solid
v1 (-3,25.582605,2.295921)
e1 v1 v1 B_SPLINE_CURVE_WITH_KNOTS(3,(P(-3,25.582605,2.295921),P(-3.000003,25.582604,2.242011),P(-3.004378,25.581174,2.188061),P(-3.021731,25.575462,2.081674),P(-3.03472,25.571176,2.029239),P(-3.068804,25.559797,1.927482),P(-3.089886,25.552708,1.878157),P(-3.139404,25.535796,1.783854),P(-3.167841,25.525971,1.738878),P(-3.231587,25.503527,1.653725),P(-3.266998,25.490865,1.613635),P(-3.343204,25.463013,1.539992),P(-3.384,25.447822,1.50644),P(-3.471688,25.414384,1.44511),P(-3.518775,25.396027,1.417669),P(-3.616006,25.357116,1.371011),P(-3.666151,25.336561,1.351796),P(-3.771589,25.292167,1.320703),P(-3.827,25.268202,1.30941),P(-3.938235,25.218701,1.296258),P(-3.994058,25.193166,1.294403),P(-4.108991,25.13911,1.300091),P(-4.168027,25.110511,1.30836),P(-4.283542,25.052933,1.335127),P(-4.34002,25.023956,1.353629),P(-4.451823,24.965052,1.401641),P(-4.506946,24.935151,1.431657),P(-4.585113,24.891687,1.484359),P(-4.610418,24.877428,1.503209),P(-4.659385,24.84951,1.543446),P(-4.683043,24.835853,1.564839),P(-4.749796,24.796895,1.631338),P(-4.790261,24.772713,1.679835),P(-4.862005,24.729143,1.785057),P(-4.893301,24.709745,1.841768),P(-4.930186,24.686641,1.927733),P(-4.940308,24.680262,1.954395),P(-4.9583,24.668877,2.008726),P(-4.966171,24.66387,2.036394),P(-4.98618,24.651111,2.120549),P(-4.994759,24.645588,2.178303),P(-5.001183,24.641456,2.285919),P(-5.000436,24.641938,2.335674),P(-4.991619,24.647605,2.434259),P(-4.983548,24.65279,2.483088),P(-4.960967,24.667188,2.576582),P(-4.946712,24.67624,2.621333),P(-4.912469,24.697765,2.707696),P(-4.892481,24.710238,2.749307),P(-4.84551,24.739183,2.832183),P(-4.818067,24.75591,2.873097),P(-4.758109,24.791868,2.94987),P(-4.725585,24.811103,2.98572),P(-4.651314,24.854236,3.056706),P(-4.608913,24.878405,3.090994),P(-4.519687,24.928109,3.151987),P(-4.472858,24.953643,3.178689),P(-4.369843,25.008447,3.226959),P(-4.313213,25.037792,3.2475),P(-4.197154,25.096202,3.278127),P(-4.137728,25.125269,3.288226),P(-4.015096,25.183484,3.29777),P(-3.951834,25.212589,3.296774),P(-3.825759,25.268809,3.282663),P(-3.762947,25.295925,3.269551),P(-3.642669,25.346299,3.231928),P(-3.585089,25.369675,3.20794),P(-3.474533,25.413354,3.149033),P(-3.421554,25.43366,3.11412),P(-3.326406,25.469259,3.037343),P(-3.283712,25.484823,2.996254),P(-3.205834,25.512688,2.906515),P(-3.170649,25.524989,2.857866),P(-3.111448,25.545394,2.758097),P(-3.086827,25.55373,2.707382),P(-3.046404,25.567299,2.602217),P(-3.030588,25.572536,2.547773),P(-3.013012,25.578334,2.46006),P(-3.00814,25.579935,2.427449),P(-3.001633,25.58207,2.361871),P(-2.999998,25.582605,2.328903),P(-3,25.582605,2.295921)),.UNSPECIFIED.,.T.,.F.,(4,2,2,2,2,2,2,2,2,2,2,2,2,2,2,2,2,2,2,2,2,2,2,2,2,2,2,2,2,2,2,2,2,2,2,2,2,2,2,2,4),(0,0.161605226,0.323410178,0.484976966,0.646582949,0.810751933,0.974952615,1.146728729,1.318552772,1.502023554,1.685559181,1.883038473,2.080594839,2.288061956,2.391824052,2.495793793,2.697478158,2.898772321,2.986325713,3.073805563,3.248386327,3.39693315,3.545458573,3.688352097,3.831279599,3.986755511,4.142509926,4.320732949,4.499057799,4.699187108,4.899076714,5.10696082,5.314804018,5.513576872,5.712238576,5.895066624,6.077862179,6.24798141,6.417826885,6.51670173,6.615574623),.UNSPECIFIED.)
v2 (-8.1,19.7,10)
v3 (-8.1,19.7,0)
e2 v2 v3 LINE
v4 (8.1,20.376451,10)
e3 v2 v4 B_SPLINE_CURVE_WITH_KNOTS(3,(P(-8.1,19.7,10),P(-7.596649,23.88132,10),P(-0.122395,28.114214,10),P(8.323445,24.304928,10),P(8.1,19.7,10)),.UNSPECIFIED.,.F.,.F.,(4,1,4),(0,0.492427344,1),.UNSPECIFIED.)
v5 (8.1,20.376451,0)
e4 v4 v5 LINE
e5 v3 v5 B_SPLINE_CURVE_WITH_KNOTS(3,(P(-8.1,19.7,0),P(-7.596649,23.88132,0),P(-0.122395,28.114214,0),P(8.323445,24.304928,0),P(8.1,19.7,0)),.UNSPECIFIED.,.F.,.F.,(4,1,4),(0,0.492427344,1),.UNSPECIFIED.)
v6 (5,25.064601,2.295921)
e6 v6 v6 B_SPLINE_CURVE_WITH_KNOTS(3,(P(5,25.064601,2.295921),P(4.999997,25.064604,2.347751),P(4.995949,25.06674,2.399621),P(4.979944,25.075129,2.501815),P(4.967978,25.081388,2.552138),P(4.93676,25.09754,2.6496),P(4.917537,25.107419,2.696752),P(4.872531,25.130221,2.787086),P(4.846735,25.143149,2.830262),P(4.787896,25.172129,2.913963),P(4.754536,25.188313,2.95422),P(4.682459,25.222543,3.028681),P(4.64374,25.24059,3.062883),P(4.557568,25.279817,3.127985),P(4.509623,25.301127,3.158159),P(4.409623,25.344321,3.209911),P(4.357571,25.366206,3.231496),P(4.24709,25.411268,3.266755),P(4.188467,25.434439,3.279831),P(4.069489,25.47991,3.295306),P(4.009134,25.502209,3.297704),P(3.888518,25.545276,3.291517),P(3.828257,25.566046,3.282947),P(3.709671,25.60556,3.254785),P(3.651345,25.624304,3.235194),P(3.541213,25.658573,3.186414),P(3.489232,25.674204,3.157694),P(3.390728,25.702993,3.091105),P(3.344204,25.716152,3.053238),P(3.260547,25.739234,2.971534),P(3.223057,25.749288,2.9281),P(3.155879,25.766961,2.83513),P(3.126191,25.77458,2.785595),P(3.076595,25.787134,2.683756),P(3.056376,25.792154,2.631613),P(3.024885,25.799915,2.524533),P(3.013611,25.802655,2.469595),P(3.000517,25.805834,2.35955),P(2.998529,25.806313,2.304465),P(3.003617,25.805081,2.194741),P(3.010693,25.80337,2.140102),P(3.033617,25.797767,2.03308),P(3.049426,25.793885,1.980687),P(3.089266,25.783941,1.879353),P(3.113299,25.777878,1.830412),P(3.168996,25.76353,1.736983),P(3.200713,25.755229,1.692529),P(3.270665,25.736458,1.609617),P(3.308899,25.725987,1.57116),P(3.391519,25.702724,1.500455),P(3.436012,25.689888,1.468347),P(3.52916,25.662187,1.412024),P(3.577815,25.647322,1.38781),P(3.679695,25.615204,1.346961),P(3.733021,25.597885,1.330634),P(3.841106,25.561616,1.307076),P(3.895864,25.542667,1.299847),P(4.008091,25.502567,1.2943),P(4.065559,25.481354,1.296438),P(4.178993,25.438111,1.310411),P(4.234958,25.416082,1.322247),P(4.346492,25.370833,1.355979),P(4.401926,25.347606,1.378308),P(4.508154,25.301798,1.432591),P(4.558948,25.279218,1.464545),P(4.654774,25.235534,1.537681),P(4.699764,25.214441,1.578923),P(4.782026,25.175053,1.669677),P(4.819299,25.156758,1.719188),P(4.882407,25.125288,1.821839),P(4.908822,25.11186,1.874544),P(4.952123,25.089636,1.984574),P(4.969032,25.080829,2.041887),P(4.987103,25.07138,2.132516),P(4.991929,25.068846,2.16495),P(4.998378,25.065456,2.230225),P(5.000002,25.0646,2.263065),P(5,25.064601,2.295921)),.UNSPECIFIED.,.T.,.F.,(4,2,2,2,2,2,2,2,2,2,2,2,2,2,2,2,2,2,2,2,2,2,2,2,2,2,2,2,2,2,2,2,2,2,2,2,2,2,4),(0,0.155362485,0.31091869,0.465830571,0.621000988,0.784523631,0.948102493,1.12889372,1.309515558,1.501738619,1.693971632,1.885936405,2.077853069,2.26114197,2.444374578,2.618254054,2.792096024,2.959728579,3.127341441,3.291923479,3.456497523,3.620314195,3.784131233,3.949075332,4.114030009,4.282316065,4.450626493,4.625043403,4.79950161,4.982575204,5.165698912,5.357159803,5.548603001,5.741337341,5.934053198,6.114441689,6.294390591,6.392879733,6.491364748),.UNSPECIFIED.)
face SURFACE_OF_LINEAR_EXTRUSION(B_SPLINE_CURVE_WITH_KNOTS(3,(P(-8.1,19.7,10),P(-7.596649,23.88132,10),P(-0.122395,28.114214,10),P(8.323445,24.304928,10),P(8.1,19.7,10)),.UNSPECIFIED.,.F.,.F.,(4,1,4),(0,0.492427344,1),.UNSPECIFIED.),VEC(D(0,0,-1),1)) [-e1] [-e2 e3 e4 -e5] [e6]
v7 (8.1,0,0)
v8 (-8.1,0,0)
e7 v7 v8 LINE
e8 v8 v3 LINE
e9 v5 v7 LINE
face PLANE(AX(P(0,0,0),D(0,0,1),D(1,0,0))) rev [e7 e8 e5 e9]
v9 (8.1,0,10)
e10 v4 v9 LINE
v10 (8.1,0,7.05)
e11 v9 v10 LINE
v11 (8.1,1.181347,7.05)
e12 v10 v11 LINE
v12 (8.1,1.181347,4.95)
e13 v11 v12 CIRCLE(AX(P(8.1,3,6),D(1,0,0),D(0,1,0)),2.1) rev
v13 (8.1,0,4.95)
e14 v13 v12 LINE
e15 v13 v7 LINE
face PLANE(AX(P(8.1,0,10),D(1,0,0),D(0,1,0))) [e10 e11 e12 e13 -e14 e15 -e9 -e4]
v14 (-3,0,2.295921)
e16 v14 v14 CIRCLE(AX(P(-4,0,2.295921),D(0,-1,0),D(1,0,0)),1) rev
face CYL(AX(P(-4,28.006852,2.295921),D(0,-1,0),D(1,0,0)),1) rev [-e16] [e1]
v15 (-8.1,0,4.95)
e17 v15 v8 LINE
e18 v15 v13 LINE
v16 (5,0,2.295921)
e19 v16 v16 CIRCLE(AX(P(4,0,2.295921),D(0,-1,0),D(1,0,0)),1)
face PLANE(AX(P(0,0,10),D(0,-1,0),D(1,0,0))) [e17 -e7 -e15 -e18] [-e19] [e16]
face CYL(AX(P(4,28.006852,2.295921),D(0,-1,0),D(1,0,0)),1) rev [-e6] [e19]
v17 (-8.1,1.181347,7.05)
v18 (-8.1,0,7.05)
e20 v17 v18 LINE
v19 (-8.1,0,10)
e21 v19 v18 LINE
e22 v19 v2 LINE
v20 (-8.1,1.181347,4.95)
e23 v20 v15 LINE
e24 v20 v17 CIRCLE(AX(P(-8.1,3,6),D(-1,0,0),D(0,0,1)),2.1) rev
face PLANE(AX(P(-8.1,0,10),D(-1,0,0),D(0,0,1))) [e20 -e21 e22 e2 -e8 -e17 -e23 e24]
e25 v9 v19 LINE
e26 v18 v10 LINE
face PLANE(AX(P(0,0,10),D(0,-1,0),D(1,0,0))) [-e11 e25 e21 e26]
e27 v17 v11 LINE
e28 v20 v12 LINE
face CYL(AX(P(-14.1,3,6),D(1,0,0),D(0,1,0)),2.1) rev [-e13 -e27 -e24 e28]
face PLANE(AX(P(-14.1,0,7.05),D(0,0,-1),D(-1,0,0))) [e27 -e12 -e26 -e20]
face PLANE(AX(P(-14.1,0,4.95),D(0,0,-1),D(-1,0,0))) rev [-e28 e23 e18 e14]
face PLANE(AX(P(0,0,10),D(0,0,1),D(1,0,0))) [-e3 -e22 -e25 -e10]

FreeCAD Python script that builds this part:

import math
import FreeCAD as App
import Part
import Sketcher
from FreeCAD import Vector

doc = App.newDocument("Part")
body = doc.addObject("PartDesign::Body", "Body")

sketch1 = body.newObject("Sketcher::SketchObject", "Sketch")
sketch1.AttachmentSupport = (doc.getObject("XY_Plane"), [""])
sketch1.MapMode = "FlatFace"
sketch1.addGeometry(Part.LineSegment(Vector(-8.1, 0, 0), Vector(8.1, 0, 0)), False)
sketch1.addGeometry(Part.LineSegment(Vector(8.1, 0, 0), Vector(8.1, 20.376451, 0)), False)
sketch1.addGeometry(Part.BSplineCurve([Vector(6.489352, 24, 0), Vector(7.416747, 23.101821, 0), Vector(8.022788, 21.90268, 0), Vector(8.1, 20.376451, 0)], [4, 4], [0.795779931, 0.974400134], False, 3, [1, 1, 1, 1], False), False)
sketch1.addGeometry(Part.BSplineCurve([Vector(-5.856909, 24, 0), Vector(-4.327036, 25.333221, 0), Vector(0.130189, 26.782367, 0), Vector(4.914346, 25.525387, 0), Vector(6.489352, 24, 0)], [4, 1, 4], [0.215700958, 0.492427344, 0.795779931], False, 3, [1, 1, 1, 1, 1], False), False)
sketch1.addGeometry(Part.BSplineCurve([Vector(-8.1, 19.7, 0), Vector(-7.879514, 21.531569, 0), Vector(-7.049405, 22.960789, 0), Vector(-5.856909, 24, 0)], [4, 4], [0, 0.215700958], False, 3, [1, 1, 1, 1], False), False)
sketch1.addGeometry(Part.LineSegment(Vector(-8.1, 19.7, 0), Vector(-8.1, 0, 0)), False)
sketch1.addConstraint(Sketcher.Constraint("Block", 2))
sketch1.addConstraint(Sketcher.Constraint("Block", 3))
sketch1.addConstraint(Sketcher.Constraint("Block", 4))
sketch1.addConstraint(Sketcher.Constraint("Coincident", 0, 2, 1, 1))
sketch1.addConstraint(Sketcher.Constraint("Coincident", 1, 2, 2, 2))
sketch1.addConstraint(Sketcher.Constraint("Coincident", 4, 1, 5, 1))
sketch1.addConstraint(Sketcher.Constraint("Coincident", 5, 2, 0, 1))
sketch1.addConstraint(Sketcher.Constraint("Horizontal", 0))
sketch1.addConstraint(Sketcher.Constraint("Vertical", 1))
sketch1.addConstraint(Sketcher.Constraint("Vertical", 5))
sketch1.addConstraint(Sketcher.Constraint("PointOnObject", 0, 2, -1))
pad1 = body.newObject("PartDesign::Pad", "Pad")
pad1.Profile = sketch1
pad1.Length = 10

sketch2 = body.newObject("Sketcher::SketchObject", "Sketch001")
sketch2.AttachmentSupport = (doc.getObject("XZ_Plane"), [""])
sketch2.MapMode = "FlatFace"
sketch2.addGeometry(Part.Circle(Vector(4, 2.295921, 0), Vector(0, 0, 1), 1), False)
sketch2.addConstraint(Sketcher.Constraint("Diameter", 0, 2.0))
sketch2.addConstraint(Sketcher.Constraint("DistanceX", -1, 1, 0, 3, 4.0))
sketch2.addConstraint(Sketcher.Constraint("DistanceY", -1, 1, 0, 3, 2.295921))
pocket1 = body.newObject("PartDesign::Pocket", "Pocket")
pocket1.Profile = sketch2
pocket1.Type = "UpToFirst"

sketch3 = body.newObject("Sketcher::SketchObject", "Sketch002")
sketch3.AttachmentSupport = (doc.getObject("XZ_Plane"), [""])
sketch3.MapMode = "FlatFace"
sketch3.addGeometry(Part.Circle(Vector(-4, 2.295921, 0), Vector(0, 0, 1), 1), False)
sketch3.addConstraint(Sketcher.Constraint("Diameter", 0, 2.0))
sketch3.addConstraint(Sketcher.Constraint("DistanceX", 0, 3, -1, 1, 4.0))
sketch3.addConstraint(Sketcher.Constraint("DistanceY", -1, 1, 0, 3, 2.295921))
pocket2 = body.newObject("PartDesign::Pocket", "Pocket001")
pocket2.Profile = sketch3
pocket2.Type = "UpToFirst"

sketch4 = body.newObject("Sketcher::SketchObject", "Sketch003")
sketch4.AttachmentSupport = (doc.getObject("YZ_Plane"), [""])
sketch4.MapMode = "FlatFace"
sketch4.addGeometry(Part.LineSegment(Vector(1.181347, 4.95, 0), Vector(0, 4.95, 0)), False)
sketch4.addGeometry(Part.LineSegment(Vector(0, 4.95, 0), Vector(0, 7.05, 0)), False)
sketch4.addGeometry(Part.LineSegment(Vector(0, 7.05, 0), Vector(1.181347, 7.05, 0)), False)
sketch4.addGeometry(Part.ArcOfCircle(Part.Circle(Vector(3, 6, 0), Vector(0, 0, 1), 2.1), math.radians(-150), math.radians(150)), False)
sketch4.addConstraint(Sketcher.Constraint("Coincident", 0, 2, 1, 1))
sketch4.addConstraint(Sketcher.Constraint("Coincident", 1, 2, 2, 1))
sketch4.addConstraint(Sketcher.Constraint("Coincident", 2, 2, 3, 2))
sketch4.addConstraint(Sketcher.Constraint("Coincident", 3, 1, 0, 1))
sketch4.addConstraint(Sketcher.Constraint("Horizontal", 0))
sketch4.addConstraint(Sketcher.Constraint("Vertical", 1))
sketch4.addConstraint(Sketcher.Constraint("Horizontal", 2))
sketch4.addConstraint(Sketcher.Constraint("PointOnObject", 0, 2, -2))
sketch4.addConstraint(Sketcher.Constraint("Vertical", 2, 2, 3, 1))
sketch4.addConstraint(Sketcher.Constraint("Radius", 3, 2.1))
sketch4.addConstraint(Sketcher.Constraint("DistanceY", 1, 1, 1, 2, 2.1))
sketch4.addConstraint(Sketcher.Constraint("DistanceX", -1, 1, 3, 3, 3.0))
sketch4.addConstraint(Sketcher.Constraint("DistanceY", -1, 1, 3, 3, 6.0))
pocket3 = body.newObject("PartDesign::Pocket", "Pocket002")
pocket3.Profile = sketch4
pocket3.Type = "ThroughAll"
pocket3.Midplane = True

doc.recompute()
